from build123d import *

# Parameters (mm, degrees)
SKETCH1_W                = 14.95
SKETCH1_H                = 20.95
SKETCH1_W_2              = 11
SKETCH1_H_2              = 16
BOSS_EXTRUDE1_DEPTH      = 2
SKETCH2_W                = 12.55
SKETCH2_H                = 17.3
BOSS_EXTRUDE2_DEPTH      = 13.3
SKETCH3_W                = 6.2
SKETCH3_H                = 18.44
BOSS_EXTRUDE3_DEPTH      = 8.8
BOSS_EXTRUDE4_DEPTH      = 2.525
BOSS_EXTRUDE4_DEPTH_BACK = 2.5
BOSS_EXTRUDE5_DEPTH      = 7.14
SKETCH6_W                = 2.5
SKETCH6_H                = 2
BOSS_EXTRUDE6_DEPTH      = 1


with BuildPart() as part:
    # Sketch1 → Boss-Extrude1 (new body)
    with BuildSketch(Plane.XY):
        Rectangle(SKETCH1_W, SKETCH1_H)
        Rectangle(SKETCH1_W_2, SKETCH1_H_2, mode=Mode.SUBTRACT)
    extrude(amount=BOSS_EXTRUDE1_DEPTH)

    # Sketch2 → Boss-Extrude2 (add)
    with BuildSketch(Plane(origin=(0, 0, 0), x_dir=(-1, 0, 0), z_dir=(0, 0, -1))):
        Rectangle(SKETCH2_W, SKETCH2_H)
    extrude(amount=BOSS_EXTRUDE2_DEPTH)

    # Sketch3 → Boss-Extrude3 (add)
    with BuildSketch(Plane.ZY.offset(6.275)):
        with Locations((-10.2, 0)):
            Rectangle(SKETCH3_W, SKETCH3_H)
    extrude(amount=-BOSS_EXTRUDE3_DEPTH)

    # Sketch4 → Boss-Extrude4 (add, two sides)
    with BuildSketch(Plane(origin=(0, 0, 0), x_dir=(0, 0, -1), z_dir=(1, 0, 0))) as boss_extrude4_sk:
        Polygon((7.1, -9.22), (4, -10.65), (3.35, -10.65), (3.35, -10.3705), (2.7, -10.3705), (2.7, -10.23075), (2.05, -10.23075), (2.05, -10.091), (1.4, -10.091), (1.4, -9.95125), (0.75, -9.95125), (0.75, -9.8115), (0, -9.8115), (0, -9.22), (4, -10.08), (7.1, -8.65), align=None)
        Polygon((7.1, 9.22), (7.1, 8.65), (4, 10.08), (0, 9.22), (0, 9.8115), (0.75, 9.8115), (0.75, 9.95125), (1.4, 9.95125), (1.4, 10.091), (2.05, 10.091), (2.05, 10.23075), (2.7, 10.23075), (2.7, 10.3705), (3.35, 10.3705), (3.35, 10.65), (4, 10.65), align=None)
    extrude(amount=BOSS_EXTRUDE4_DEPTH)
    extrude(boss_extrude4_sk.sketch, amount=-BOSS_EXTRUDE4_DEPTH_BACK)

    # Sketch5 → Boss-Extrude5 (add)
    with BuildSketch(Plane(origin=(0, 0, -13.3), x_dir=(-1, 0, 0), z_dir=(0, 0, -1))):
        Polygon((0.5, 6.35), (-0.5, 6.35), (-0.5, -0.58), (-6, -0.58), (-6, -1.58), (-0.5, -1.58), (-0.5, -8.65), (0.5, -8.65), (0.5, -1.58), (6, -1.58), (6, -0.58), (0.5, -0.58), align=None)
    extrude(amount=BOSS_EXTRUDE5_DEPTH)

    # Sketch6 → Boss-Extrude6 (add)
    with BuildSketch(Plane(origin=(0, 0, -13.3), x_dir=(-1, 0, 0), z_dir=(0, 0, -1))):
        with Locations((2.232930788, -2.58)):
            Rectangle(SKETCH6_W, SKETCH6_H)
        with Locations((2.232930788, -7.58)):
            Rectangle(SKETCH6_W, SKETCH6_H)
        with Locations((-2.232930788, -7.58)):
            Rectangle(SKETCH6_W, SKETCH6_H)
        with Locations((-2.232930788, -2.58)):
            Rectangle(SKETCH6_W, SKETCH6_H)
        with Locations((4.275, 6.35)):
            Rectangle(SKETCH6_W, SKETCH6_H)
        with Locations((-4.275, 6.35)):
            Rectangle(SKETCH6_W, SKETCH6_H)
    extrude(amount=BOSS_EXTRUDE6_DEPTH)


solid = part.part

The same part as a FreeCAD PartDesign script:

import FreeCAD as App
import Part
import Sketcher

V = App.Vector

doc = App.newDocument("Part")
body = doc.addObject("PartDesign::Body", "Body")

sketch1 = body.newObject("Sketcher::SketchObject", "Sketch")
sketch1.AttachmentSupport = (doc.getObject("XY_Plane"), [""])
sketch1.MapMode = "FlatFace"
sketch1.addGeometry([
    Part.LineSegment(V(-7.475, 10.475, 0), V(-7.475, -10.475, 0)),
    Part.LineSegment(V(-7.475, -10.475, 0), V(7.475, -10.475, 0)),
    Part.LineSegment(V(7.475, -10.475, 0), V(7.475, 10.475, 0)),
    Part.LineSegment(V(7.475, 10.475, 0), V(-7.475, 10.475, 0)),
    Part.LineSegment(V(5.5, -8, 0), V(-5.5, -8, 0)),
    Part.LineSegment(V(-5.5, -8, 0), V(-5.5, 8, 0)),
    Part.LineSegment(V(-5.5, 8, 0), V(5.5, 8, 0)),
    Part.LineSegment(V(5.5, 8, 0), V(5.5, -8, 0)),
], False)
sketch1.addConstraint([
    Sketcher.Constraint("Coincident", 0, 2, 1, 1),
    Sketcher.Constraint("Coincident", 1, 2, 2, 1),
    Sketcher.Constraint("Coincident", 2, 2, 3, 1),
    Sketcher.Constraint("Coincident", 3, 2, 0, 1),
    Sketcher.Constraint("Coincident", 4, 2, 5, 1),
    Sketcher.Constraint("Coincident", 5, 2, 6, 1),
    Sketcher.Constraint("Coincident", 6, 2, 7, 1),
    Sketcher.Constraint("Coincident", 7, 2, 4, 1),
    Sketcher.Constraint("Vertical", 0),
    Sketcher.Constraint("Horizontal", 1),
    Sketcher.Constraint("Vertical", 2),
    Sketcher.Constraint("Horizontal", 3),
    Sketcher.Constraint("Horizontal", 4),
    Sketcher.Constraint("Vertical", 5),
    Sketcher.Constraint("Horizontal", 6),
    Sketcher.Constraint("Vertical", 7),
    Sketcher.Constraint("Symmetric", 0, 2, 2, 2, -1, 1),
    Sketcher.Constraint("Symmetric", 4, 2, 6, 2, -1, 1),
    Sketcher.Constraint("DistanceX", 4, 2, 4, 1, 11.0),
    Sketcher.Constraint("DistanceY", 5, 1, 5, 2, 16.0),
    Sketcher.Constraint("DistanceX", 1, 1, 1, 2, 14.95),
    Sketcher.Constraint("DistanceY", 0, 2, 0, 1, 20.95),
])
pad1 = body.newObject("PartDesign::Pad", "Pad")
pad1.Profile = sketch1
pad1.Length = 2

sketch2 = body.newObject("Sketcher::SketchObject", "Sketch001")
sketch2.AttachmentSupport = (doc.getObject("XY_Plane"), [""])
sketch2.MapMode = "FlatFace"
sketch2.addGeometry([
    Part.LineSegment(V(6.275, 8.65, 0), V(6.275, -8.65, 0)),
    Part.LineSegment(V(6.275, -8.65, 0), V(-6.275, -8.65, 0)),
    Part.LineSegment(V(-6.275, -8.65, 0), V(-6.275, 8.65, 0)),
    Part.LineSegment(V(-6.275, 8.65, 0), V(6.275, 8.65, 0)),
], False)
sketch2.addConstraint([
    Sketcher.Constraint("Coincident", 0, 2, 1, 1),
    Sketcher.Constraint("Coincident", 1, 2, 2, 1),
    Sketcher.Constraint("Coincident", 2, 2, 3, 1),
    Sketcher.Constraint("Coincident", 3, 2, 0, 1),
    Sketcher.Constraint("Vertical", 0),
    Sketcher.Constraint("Horizontal", 1),
    Sketcher.Constraint("Vertical", 2),
    Sketcher.Constraint("Horizontal", 3),
    Sketcher.Constraint("Symmetric", 0, 2, 2, 2, -1, 1),
    Sketcher.Constraint("DistanceY", 0, 2, 0, 1, 17.3),
    Sketcher.Constraint("DistanceX", 1, 2, 1, 1, 12.55),
])
pad2 = body.newObject("PartDesign::Pad", "Pad001")
pad2.Profile = sketch2
pad2.Length = 13.3
pad2.Reversed = True

sketch3 = body.newObject("Sketcher::SketchObject", "Sketch002")
sketch3.AttachmentSupport = (doc.getObject("YZ_Plane"), [""])
sketch3.MapMode = "FlatFace"
sketch3.AttachmentOffset = App.Placement(V(0, 0, -6.275), App.Rotation())
sketch3.addGeometry([
    Part.LineSegment(V(9.22, -13.3, 0), V(-9.22, -13.3, 0)),
    Part.LineSegment(V(-9.22, -13.3, 0), V(-9.22, -7.1, 0)),
    Part.LineSegment(V(-9.22, -7.1, 0), V(9.22, -7.1, 0)),
    Part.LineSegment(V(9.22, -7.1, 0), V(9.22, -13.3, 0)),
], False)
sketch3.addConstraint([
    Sketcher.Constraint("Coincident", 0, 2, 1, 1),
    Sketcher.Constraint("Coincident", 1, 2, 2, 1),
    Sketcher.Constraint("Coincident", 2, 2, 3, 1),
    Sketcher.Constraint("Coincident", 3, 2, 0, 1),
    Sketcher.Constraint("Horizontal", 0),
    Sketcher.Constraint("Vertical", 1),
    Sketcher.Constraint("Horizontal", 2),
    Sketcher.Constraint("Vertical", 3),
    Sketcher.Constraint("DistanceY", 1, 1, 1, 2, 6.2),
    Sketcher.Constraint("DistanceX", 0, 2, 0, 1, 18.44),
    Sketcher.Constraint("DistanceY", 0, 2, -1, 1, 13.3),
    Sketcher.Constraint("DistanceX", 0, 2, -1, 1, 9.22),
])
pad3 = body.newObject("PartDesign::Pad", "Pad002")
pad3.Profile = sketch3
pad3.Length = 8.8

sketch4 = body.newObject("Sketcher::SketchObject", "Sketch003")
sketch4.AttachmentSupport = (doc.getObject("YZ_Plane"), [""])
sketch4.MapMode = "FlatFace"
sketch4.addGeometry([
    Part.LineSegment(V(-10.65, -4, 0), V(-9.22, -7.1, 0)),
    Part.LineSegment(V(-9.22, -7.1, 0), V(-8.65, -7.1, 0)),
    Part.LineSegment(V(-8.65, -7.1, 0), V(-10.08, -4, 0)),
    Part.LineSegment(V(-10.08, -4, 0), V(-9.22, 0, 0)),
    Part.LineSegment(V(-9.22, 0, 0), V(-9.8115, 0, 0)),
    Part.LineSegment(V(-9.8115, 0, 0), V(-9.8115, -0.75, 0)),
    Part.LineSegment(V(-9.8115, -0.75, 0), V(-9.95125, -0.75, 0)),
    Part.LineSegment(V(-9.95125, -0.75, 0), V(-9.95125, -1.4, 0)),
    Part.LineSegment(V(-9.95125, -1.4, 0), V(-10.091, -1.4, 0)),
    Part.LineSegment(V(-10.091, -1.4, 0), V(-10.091, -2.05, 0)),
    Part.LineSegment(V(-10.091, -2.05, 0), V(-10.23075, -2.05, 0)),
    Part.LineSegment(V(-10.23075, -2.05, 0), V(-10.23075, -2.7, 0)),
    Part.LineSegment(V(-10.23075, -2.7, 0), V(-10.3705, -2.7, 0)),
    Part.LineSegment(V(-10.3705, -2.7, 0), V(-10.3705, -3.35, 0)),
    Part.LineSegment(V(-10.3705, -3.35, 0), V(-10.65, -3.35, 0)),
    Part.LineSegment(V(-10.65, -3.35, 0), V(-10.65, -4, 0)),
    Part.LineSegment(V(8.65, -7.1, 0), V(9.22, -7.1, 0)),
    Part.LineSegment(V(9.22, -7.1, 0), V(10.65, -4, 0)),
    Part.LineSegment(V(10.65, -4, 0), V(10.65, -3.35, 0)),
    Part.LineSegment(V(10.65, -3.35, 0), V(10.3705, -3.35, 0)),
    Part.LineSegment(V(10.3705, -3.35, 0), V(10.3705, -2.7, 0)),
    Part.LineSegment(V(10.3705, -2.7, 0), V(10.23075, -2.7, 0)),
    Part.LineSegment(V(10.23075, -2.7, 0), V(10.23075, -2.05, 0)),
    Part.LineSegment(V(10.23075, -2.05, 0), V(10.091, -2.05, 0)),
    Part.LineSegment(V(10.091, -2.05, 0), V(10.091, -1.4, 0)),
    Part.LineSegment(V(10.091, -1.4, 0), V(9.95125, -1.4, 0)),
    Part.LineSegment(V(9.95125, -1.4, 0), V(9.95125, -0.75, 0)),
    Part.LineSegment(V(9.95125, -0.75, 0), V(9.8115, -0.75, 0)),
    Part.LineSegment(V(9.8115, -0.75, 0), V(9.8115, 0, 0)),
    Part.LineSegment(V(9.8115, 0, 0), V(9.22, 0, 0)),
    Part.LineSegment(V(9.22, 0, 0), V(10.08, -4, 0)),
    Part.LineSegment(V(10.08, -4, 0), V(8.65, -7.1, 0)),
], False)
sketch4.addConstraint([
    Sketcher.Constraint("Coincident", 0, 2, 1, 1),
    Sketcher.Constraint("Coincident", 1, 2, 2, 1),
    Sketcher.Constraint("Coincident", 2, 2, 3, 1),
    Sketcher.Constraint("Coincident", 3, 2, 4, 1),
    Sketcher.Constraint("Coincident", 4, 2, 5, 1),
    Sketcher.Constraint("Coincident", 5, 2, 6, 1),
    Sketcher.Constraint("Coincident", 6, 2, 7, 1),
    Sketcher.Constraint("Coincident", 7, 2, 8, 1),
    Sketcher.Constraint("Coincident", 8, 2, 9, 1),
    Sketcher.Constraint("Coincident", 9, 2, 10, 1),
    Sketcher.Constraint("Coincident", 10, 2, 11, 1),
    Sketcher.Constraint("Coincident", 11, 2, 12, 1),
    Sketcher.Constraint("Coincident", 12, 2, 13, 1),
    Sketcher.Constraint("Coincident", 13, 2, 14, 1),
    Sketcher.Constraint("Coincident", 14, 2, 15, 1),
    Sketcher.Constraint("Coincident", 15, 2, 0, 1),
    Sketcher.Constraint("Coincident", 16, 2, 17, 1),
    Sketcher.Constraint("Coincident", 17, 2, 18, 1),
    Sketcher.Constraint("Coincident", 18, 2, 19, 1),
    Sketcher.Constraint("Coincident", 19, 2, 20, 1),
    Sketcher.Constraint("Coincident", 20, 2, 21, 1),
    Sketcher.Constraint("Coincident", 21, 2, 22, 1),
    Sketcher.Constraint("Coincident", 22, 2, 23, 1),
    Sketcher.Constraint("Coincident", 23, 2, 24, 1),
    Sketcher.Constraint("Coincident", 24, 2, 25, 1),
    Sketcher.Constraint("Coincident", 25, 2, 26, 1),
    Sketcher.Constraint("Coincident", 26, 2, 27, 1),
    Sketcher.Constraint("Coincident", 27, 2, 28, 1),
    Sketcher.Constraint("Coincident", 28, 2, 29, 1),
    Sketcher.Constraint("Coincident", 29, 2, 30, 1),
    Sketcher.Constraint("Coincident", 30, 2, 31, 1),
    Sketcher.Constraint("Coincident", 31, 2, 16, 1),
    Sketcher.Constraint("Horizontal", 1),
    Sketcher.Constraint("Horizontal", 4),
    Sketcher.Constraint("Vertical", 5),
    Sketcher.Constraint("Horizontal", 6),
    Sketcher.Constraint("Vertical", 7),
    Sketcher.Constraint("Horizontal", 8),
    Sketcher.Constraint("Vertical", 9),
    Sketcher.Constraint("Horizontal", 10),
    Sketcher.Constraint("Vertical", 11),
    Sketcher.Constraint("Horizontal", 12),
    Sketcher.Constraint("Vertical", 13),
    Sketcher.Constraint("Horizontal", 14),
    Sketcher.Constraint("Vertical", 15),
    Sketcher.Constraint("Horizontal", 16),
    Sketcher.Constraint("Vertical", 18),
    Sketcher.Constraint("Horizontal", 19),
    Sketcher.Constraint("Vertical", 20),
    Sketcher.Constraint("Horizontal", 21),
    Sketcher.Constraint("Vertical", 22),
    Sketcher.Constraint("Horizontal", 23),
    Sketcher.Constraint("Vertical", 24),
    Sketcher.Constraint("Horizontal", 25),
    Sketcher.Constraint("Vertical", 26),
    Sketcher.Constraint("Horizontal", 27),
    Sketcher.Constraint("Vertical", 28),
    Sketcher.Constraint("Horizontal", 29),
    Sketcher.Constraint("Symmetric", 4, 2, 28, 2, -1, 1),
    Sketcher.Constraint("Symmetric", 0, 2, 16, 2, -2),
    Sketcher.Constraint("Symmetric", 15, 2, 17, 2, -2),
    Sketcher.Constraint("Symmetric", 13, 2, 19, 2, -2),
    Sketcher.Constraint("Symmetric", 11, 2, 21, 2, -2),
    Sketcher.Constraint("Symmetric", 9, 2, 23, 2, -2),
    Sketcher.Constraint("Symmetric", 7, 2, 25, 2, -2),
    Sketcher.Constraint("Symmetric", 3, 2, 29, 2, -2),
    Sketcher.Constraint("Symmetric", 2, 2, 30, 2, -2),
    Sketcher.Constraint("Parallel", 0, 2),
    Sketcher.Constraint("Parallel", 17, 31),
    Sketcher.Constraint("Horizontal", 2, 2, 15, 2),
    Sketcher.Constraint("Horizontal", 6, 2, 26, 2),
    Sketcher.Constraint("Vertical", 0, 2, 3, 2),
    Sketcher.Constraint("Equal", 6, 8),
    Sketcher.Constraint("Equal", 8, 10),
    Sketcher.Constraint("Equal", 10, 12),
    Sketcher.Constraint("Equal", 7, 9),
    Sketcher.Constraint("Equal", 9, 11),
    Sketcher.Constraint("Equal", 11, 13),
    Sketcher.Constraint("Equal", 13, 15),
    Sketcher.Constraint("DistanceY", 2, 2, -1, 1, 4.0),
    Sketcher.Constraint("DistanceX", 31, 2, 17, 2, 2.0),
    Sketcher.Constraint("DistanceX", 1, 1, 1, 2, 0.57),
    Sketcher.Constraint("DistanceY", 5, 2, 5, 1, 0.75),
    Sketcher.Constraint("DistanceY", 0, 2, -1, 1, 7.1),
    Sketcher.Constraint("DistanceX", 2, 2, 16, 2, 19.3),
    Sketcher.Constraint("DistanceX", 4, 2, 4, 1, 0.5915),
    Sketcher.Constraint("DistanceX", 14, 2, 14, 1, 0.2795),
])
pad4 = body.newObject("PartDesign::Pad", "Pad003")
pad4.Profile = sketch4
pad4.Type = "TwoLengths"
pad4.Length = 2.525
pad4.Length2 = 2.5

sketch5 = body.newObject("Sketcher::SketchObject", "Sketch004")
sketch5.AttachmentSupport = (doc.getObject("XY_Plane"), [""])
sketch5.MapMode = "FlatFace"
sketch5.AttachmentOffset = App.Placement(V(0, 0, -13.3), App.Rotation())
sketch5.addGeometry([
    Part.LineSegment(V(-0.5, 6.35, 0), V(0.5, 6.35, 0)),
    Part.LineSegment(V(0.5, 6.35, 0), V(0.5, -0.58, 0)),
    Part.LineSegment(V(0.5, -0.58, 0), V(6, -0.58, 0)),
    Part.LineSegment(V(6, -0.58, 0), V(6, -1.58, 0)),
    Part.LineSegment(V(6, -1.58, 0), V(0.5, -1.58, 0)),
    Part.LineSegment(V(0.5, -1.58, 0), V(0.5, -8.65, 0)),
    Part.LineSegment(V(0.5, -8.65, 0), V(-0.5, -8.65, 0)),
    Part.LineSegment(V(-0.5, -8.65, 0), V(-0.5, -1.58, 0)),
    Part.LineSegment(V(-0.5, -1.58, 0), V(-6, -1.58, 0)),
    Part.LineSegment(V(-6, -1.58, 0), V(-6, -0.58, 0)),
    Part.LineSegment(V(-6, -0.58, 0), V(-0.5, -0.58, 0)),
    Part.LineSegment(V(-0.5, -0.58, 0), V(-0.5, 6.35, 0)),
], False)
sketch5.addConstraint([
    Sketcher.Constraint("Coincident", 0, 2, 1, 1),
    Sketcher.Constraint("Coincident", 1, 2, 2, 1),
    Sketcher.Constraint("Coincident", 2, 2, 3, 1),
    Sketcher.Constraint("Coincident", 3, 2, 4, 1),
    Sketcher.Constraint("Coincident", 4, 2, 5, 1),
    Sketcher.Constraint("Coincident", 5, 2, 6, 1),
    Sketcher.Constraint("Coincident", 6, 2, 7, 1),
    Sketcher.Constraint("Coincident", 7, 2, 8, 1),
    Sketcher.Constraint("Coincident", 8, 2, 9, 1),
    Sketcher.Constraint("Coincident", 9, 2, 10, 1),
    Sketcher.Constraint("Coincident", 10, 2, 11, 1),
    Sketcher.Constraint("Coincident", 11, 2, 0, 1),
    Sketcher.Constraint("Horizontal", 0),
    Sketcher.Constraint("Vertical", 1),
    Sketcher.Constraint("Horizontal", 2),
    Sketcher.Constraint("Vertical", 3),
    Sketcher.Constraint("Horizontal", 4),
    Sketcher.Constraint("Vertical", 5),
    Sketcher.Constraint("Horizontal", 6),
    Sketcher.Constraint("Vertical", 7),
    Sketcher.Constraint("Horizontal", 8),
    Sketcher.Constraint("Vertical", 9),
    Sketcher.Constraint("Horizontal", 10),
    Sketcher.Constraint("Vertical", 11),
    Sketcher.Constraint("Symmetric", 4, 2, 7, 2, -2),
    Sketcher.Constraint("Symmetric", 2, 2, 9, 2, -2),
    Sketcher.Constraint("Vertical", 1, 2, 4, 2),
    Sketcher.Constraint("Vertical", 7, 2, 10, 2),
    Sketcher.Constraint("Equal", 6, 3),
    Sketcher.Constraint("DistanceX", 0, 1, 0, 2, 1.0),
    Sketcher.Constraint("DistanceX", 2, 1, 2, 2, 5.5),
    Sketcher.Constraint("DistanceY", 5, 2, 0, 2, 15.0),
    Sketcher.Constraint("DistanceY", 1, 2, 1, 1, 6.93),
    Sketcher.Constraint("DistanceY", -1, 1, 0, 2, 6.35),
])
pad5 = body.newObject("PartDesign::Pad", "Pad004")
pad5.Profile = sketch5
pad5.Length = 7.14
pad5.Reversed = True

sketch6 = body.newObject("Sketcher::SketchObject", "Sketch005")
sketch6.AttachmentSupport = (doc.getObject("XY_Plane"), [""])
sketch6.MapMode = "FlatFace"
sketch6.AttachmentOffset = App.Placement(V(0, 0, -13.3), App.Rotation())
sketch6.addGeometry([
    Part.LineSegment(V(-0.982931, -1.58, 0), V(-0.982931, -3.58, 0)),
    Part.LineSegment(V(-0.982931, -3.58, 0), V(-3.482931, -3.58, 0)),
    Part.LineSegment(V(-3.482931, -3.58, 0), V(-3.482931, -1.58, 0)),
    Part.LineSegment(V(-3.482931, -1.58, 0), V(-0.982931, -1.58, 0)),
    Part.LineSegment(V(-0.982931, -6.58, 0), V(-0.982931, -8.58, 0)),
    Part.LineSegment(V(-0.982931, -8.58, 0), V(-3.482931, -8.58, 0)),
    Part.LineSegment(V(-3.482931, -8.58, 0), V(-3.482931, -6.58, 0)),
    Part.LineSegment(V(-3.482931, -6.58, 0), V(-0.982931, -6.58, 0)),
    Part.LineSegment(V(3.482931, -6.58, 0), V(3.482931, -8.58, 0)),
    Part.LineSegment(V(3.482931, -8.58, 0), V(0.982931, -8.58, 0)),
    Part.LineSegment(V(0.982931, -8.58, 0), V(0.982931, -6.58, 0)),
    Part.LineSegment(V(0.982931, -6.58, 0), V(3.482931, -6.58, 0)),
    Part.LineSegment(V(3.482931, -1.58, 0), V(3.482931, -3.58, 0)),
    Part.LineSegment(V(3.482931, -3.58, 0), V(0.982931, -3.58, 0)),
    Part.LineSegment(V(0.982931, -3.58, 0), V(0.982931, -1.58, 0)),
    Part.LineSegment(V(0.982931, -1.58, 0), V(3.482931, -1.58, 0)),
    Part.LineSegment(V(-3.025, 7.35, 0), V(-3.025, 5.35, 0)),
    Part.LineSegment(V(-3.025, 5.35, 0), V(-5.525, 5.35, 0)),
    Part.LineSegment(V(-5.525, 5.35, 0), V(-5.525, 7.35, 0)),
    Part.LineSegment(V(-5.525, 7.35, 0), V(-3.025, 7.35, 0)),
    Part.LineSegment(V(5.525, 7.35, 0), V(5.525, 5.35, 0)),
    Part.LineSegment(V(5.525, 5.35, 0), V(3.025, 5.35, 0)),
    Part.LineSegment(V(3.025, 5.35, 0), V(3.025, 7.35, 0)),
    Part.LineSegment(V(3.025, 7.35, 0), V(5.525, 7.35, 0)),
], False)
sketch6.addConstraint([
    Sketcher.Constraint("Coincident", 0, 2, 1, 1),
    Sketcher.Constraint("Coincident", 1, 2, 2, 1),
    Sketcher.Constraint("Coincident", 2, 2, 3, 1),
    Sketcher.Constraint("Coincident", 3, 2, 0, 1),
    Sketcher.Constraint("Coincident", 4, 2, 5, 1),
    Sketcher.Constraint("Coincident", 5, 2, 6, 1),
    Sketcher.Constraint("Coincident", 6, 2, 7, 1),
    Sketcher.Constraint("Coincident", 7, 2, 4, 1),
    Sketcher.Constraint("Coincident", 8, 2, 9, 1),
    Sketcher.Constraint("Coincident", 9, 2, 10, 1),
    Sketcher.Constraint("Coincident", 10, 2, 11, 1),
    Sketcher.Constraint("Coincident", 11, 2, 8, 1),
    Sketcher.Constraint("Coincident", 12, 2, 13, 1),
    Sketcher.Constraint("Coincident", 13, 2, 14, 1),
    Sketcher.Constraint("Coincident", 14, 2, 15, 1),
    Sketcher.Constraint("Coincident", 15, 2, 12, 1),
    Sketcher.Constraint("Coincident", 16, 2, 17, 1),
    Sketcher.Constraint("Coincident", 17, 2, 18, 1),
    Sketcher.Constraint("Coincident", 18, 2, 19, 1),
    Sketcher.Constraint("Coincident", 19, 2, 16, 1),
    Sketcher.Constraint("Coincident", 20, 2, 21, 1),
    Sketcher.Constraint("Coincident", 21, 2, 22, 1),
    Sketcher.Constraint("Coincident", 22, 2, 23, 1),
    Sketcher.Constraint("Coincident", 23, 2, 20, 1),
    Sketcher.Constraint("Vertical", 0),
    Sketcher.Constraint("Horizontal", 1),
    Sketcher.Constraint("Vertical", 2),
    Sketcher.Constraint("Horizontal", 3),
    Sketcher.Constraint("Vertical", 4),
    Sketcher.Constraint("Horizontal", 5),
    Sketcher.Constraint("Vertical", 6),
    Sketcher.Constraint("Horizontal", 7),
    Sketcher.Constraint("Vertical", 8),
    Sketcher.Constraint("Horizontal", 9),
    Sketcher.Constraint("Vertical", 10),
    Sketcher.Constraint("Horizontal", 11),
    Sketcher.Constraint("Vertical", 12),
    Sketcher.Constraint("Horizontal", 13),
    Sketcher.Constraint("Vertical", 14),
    Sketcher.Constraint("Horizontal", 15),
    Sketcher.Constraint("Vertical", 16),
    Sketcher.Constraint("Horizontal", 17),
    Sketcher.Constraint("Vertical", 18),
    Sketcher.Constraint("Horizontal", 19),
    Sketcher.Constraint("Vertical", 20),
    Sketcher.Constraint("Horizontal", 21),
    Sketcher.Constraint("Vertical", 22),
    Sketcher.Constraint("Horizontal", 23),
    Sketcher.Constraint("Symmetric", 5, 2, 8, 2, -2),
    Sketcher.Constraint("Symmetric", 7, 2, 10, 2, -2),
    Sketcher.Constraint("Symmetric", 1, 2, 12, 2, -2),
    Sketcher.Constraint("Symmetric", 3, 2, 14, 2, -2),
    Sketcher.Constraint("Symmetric", 17, 2, 20, 2, -2),
    Sketcher.Constraint("Symmetric", 19, 2, 22, 2, -2),
    Sketcher.Constraint("Vertical", 3, 2, 4, 2),
    Sketcher.Constraint("Vertical", 2, 2, 5, 2),
    Sketcher.Constraint("Equal", 15, 17),
    Sketcher.Constraint("Equal", 2, 4),
    Sketcher.Constraint("Equal", 14, 16),
    Sketcher.Constraint("DistanceY", 0, 2, 0, 1, 2.0),
    Sketcher.Constraint("DistanceX", 1, 2, 1, 1, 2.5),
    Sketcher.Constraint("DistanceY", 4, 2, 0, 2, 5.0),
    Sketcher.Constraint("DistanceY", 0, 2, -1, 1, 3.58),
    Sketcher.Constraint("DistanceY", -1, 1, 16, 2, 5.35),
    Sketcher.Constraint("DistanceX", 16, 2, 20, 2, 8.55),
    Sketcher.Constraint("DistanceX", 0, 2, -1, 1, 0.982931),
])
pad6 = body.newObject("PartDesign::Pad", "Pad005")
pad6.Profile = sketch6
pad6.Length = 1
pad6.Reversed = True

doc.recompute()
